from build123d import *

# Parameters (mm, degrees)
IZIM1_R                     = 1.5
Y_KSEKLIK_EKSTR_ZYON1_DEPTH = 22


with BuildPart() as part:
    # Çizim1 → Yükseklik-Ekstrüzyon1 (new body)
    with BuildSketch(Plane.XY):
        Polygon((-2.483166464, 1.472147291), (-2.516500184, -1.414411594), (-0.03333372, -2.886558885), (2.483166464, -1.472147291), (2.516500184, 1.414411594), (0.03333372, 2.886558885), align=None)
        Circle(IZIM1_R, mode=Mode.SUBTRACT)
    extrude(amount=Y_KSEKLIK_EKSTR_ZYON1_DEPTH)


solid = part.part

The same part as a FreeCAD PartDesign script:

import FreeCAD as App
import Part
import Sketcher
Q = App.Units.Quantity


def add_polygon(sketch, points):
    """Adds a closed chain of lines whose ends are joined by coincident constraints."""
    first, n = sketch.GeometryCount, len(points)
    for a, b in zip(points, points[1:] + points[:1]):
        sketch.addGeometry(Part.LineSegment(App.Vector(*a, 0), App.Vector(*b, 0)), False)
    for i in range(n):
        sketch.addConstraint(Sketcher.Constraint("Coincident", first + i, 2, first + (i + 1) % n, 1))

doc = App.newDocument("Part")
body = doc.addObject("PartDesign::Body", "Body")

# Sketch on XY plane
sketch1 = body.newObject("Sketcher::SketchObject", "Sketch")
sketch1.AttachmentSupport = (doc.getObject("XY_Plane"), [""])
sketch1.MapMode = "FlatFace"
add_polygon(sketch1, [(-2.483166, 1.472147), (-2.5165, -1.414412), (-0.033334, -2.886559), (2.483166, -1.472147), (2.5165, 1.414412), (0.033334, 2.886559)])  # lines 0-5
sketch1.addGeometry(Part.Circle(App.Vector(0, 0, 0), App.Vector(0, 0, 1), 1.5), False)  # 6
sketch1.addConstraint(Sketcher.Constraint("Coincident", 6, 3, -1, 1))
sketch1.addConstraint(Sketcher.Constraint("Symmetric", 0, 2, 3, 2, -1, 1))
sketch1.addConstraint(Sketcher.Constraint("Symmetric", 1, 2, 4, 2, -1, 1))
sketch1.addConstraint(Sketcher.Constraint("Symmetric", 2, 2, 5, 2, -1, 1))
sketch1.addConstraint(Sketcher.Constraint("Equal", 0, 1))
sketch1.addConstraint(Sketcher.Constraint("Equal", 1, 2))
sketch1.addConstraint(Sketcher.Constraint("Diameter", 6, Q("3 mm")))
sketch1.addConstraint(Sketcher.Constraint("DistanceX", 0, 2, 3, 2, Q("5.033 mm")))
sketch1.addConstraint(Sketcher.Constraint("DistanceX", 1, 2, 2, 2, Q("2.5165 mm")))
sketch1.addConstraint(Sketcher.Constraint("Distance", 0, Q("2.886751 mm")))
sketch1.addConstraint(Sketcher.Constraint("DistanceY", 0, 2, -1, 1, Q("1.414412 mm")))
pad1 = body.newObject("PartDesign::Pad", "Pad")
pad1.Profile = sketch1
pad1.Length = 22

doc.recompute()
